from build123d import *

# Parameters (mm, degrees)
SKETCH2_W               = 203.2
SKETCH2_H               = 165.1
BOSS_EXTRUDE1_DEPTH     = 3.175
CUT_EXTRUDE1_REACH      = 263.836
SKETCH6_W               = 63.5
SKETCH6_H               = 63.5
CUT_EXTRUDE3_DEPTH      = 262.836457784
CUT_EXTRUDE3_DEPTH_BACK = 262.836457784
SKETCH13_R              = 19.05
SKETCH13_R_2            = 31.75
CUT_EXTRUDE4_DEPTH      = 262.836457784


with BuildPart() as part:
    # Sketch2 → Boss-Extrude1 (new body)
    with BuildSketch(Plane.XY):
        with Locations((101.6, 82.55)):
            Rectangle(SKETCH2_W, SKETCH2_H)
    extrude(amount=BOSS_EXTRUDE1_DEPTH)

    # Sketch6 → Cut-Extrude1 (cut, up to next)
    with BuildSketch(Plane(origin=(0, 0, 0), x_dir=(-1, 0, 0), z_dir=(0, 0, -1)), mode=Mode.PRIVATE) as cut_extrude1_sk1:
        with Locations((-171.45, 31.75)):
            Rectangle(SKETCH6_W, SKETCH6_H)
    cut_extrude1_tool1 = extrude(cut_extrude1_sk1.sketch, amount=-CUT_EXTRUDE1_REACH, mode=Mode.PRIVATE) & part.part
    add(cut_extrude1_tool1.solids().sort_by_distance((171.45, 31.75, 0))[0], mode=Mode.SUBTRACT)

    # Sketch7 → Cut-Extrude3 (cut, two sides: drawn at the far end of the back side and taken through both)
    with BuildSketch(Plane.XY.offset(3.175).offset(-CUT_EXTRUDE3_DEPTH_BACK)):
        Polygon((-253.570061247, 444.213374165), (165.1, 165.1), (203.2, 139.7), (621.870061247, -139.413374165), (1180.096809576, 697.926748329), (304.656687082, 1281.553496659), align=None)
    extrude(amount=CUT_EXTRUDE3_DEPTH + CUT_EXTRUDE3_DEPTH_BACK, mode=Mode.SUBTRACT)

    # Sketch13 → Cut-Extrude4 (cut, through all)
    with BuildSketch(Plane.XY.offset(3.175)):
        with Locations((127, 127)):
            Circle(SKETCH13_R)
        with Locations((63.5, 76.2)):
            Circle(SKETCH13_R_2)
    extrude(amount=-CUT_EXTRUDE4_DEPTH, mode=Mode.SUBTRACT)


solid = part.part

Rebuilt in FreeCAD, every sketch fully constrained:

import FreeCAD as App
import Part
import Sketcher

V = App.Vector
Q = App.Units.Quantity


def add_polygon(sketch, points):
    """Adds a closed chain of lines whose ends are joined by coincident constraints."""
    first, n = sketch.GeometryCount, len(points)
    for a, b in zip(points, points[1:] + points[:1]):
        sketch.addGeometry(Part.LineSegment(App.Vector(*a, 0), App.Vector(*b, 0)), False)
    for i in range(n):
        sketch.addConstraint(Sketcher.Constraint("Coincident", first + i, 2, first + (i + 1) % n, 1))

doc = App.newDocument("Part")
body = doc.addObject("PartDesign::Body", "Body")

# Sketch on XY plane
sketch1 = body.newObject("Sketcher::SketchObject", "Sketch")
sketch1.AttachmentSupport = (doc.getObject("XY_Plane"), [""])
sketch1.MapMode = "FlatFace"
add_polygon(sketch1, [(0, 165), (0, 0), (203, 0), (203, 165)])  # lines 0-3
sketch1.addConstraint(Sketcher.Constraint("Vertical", 0))
sketch1.addConstraint(Sketcher.Constraint("Horizontal", 1))
sketch1.addConstraint(Sketcher.Constraint("Vertical", 2))
sketch1.addConstraint(Sketcher.Constraint("Horizontal", 3))
sketch1.addConstraint(Sketcher.Constraint("Coincident", 0, 2, -1, 1))
sketch1.addConstraint(Sketcher.Constraint("DistanceX", 1, 1, 1, 2, Q("8 in")))
sketch1.addConstraint(Sketcher.Constraint("DistanceY", 0, 2, 0, 1, Q("6.5 in")))
pad1 = body.newObject("PartDesign::Pad", "Pad")
pad1.Profile = sketch1
pad1.Length = Q("0.125 in")

# Sketch on XY plane
sketch2 = body.newObject("Sketcher::SketchObject", "Sketch001")
sketch2.AttachmentSupport = (doc.getObject("XY_Plane"), [""])
sketch2.MapMode = "FlatFace"
add_polygon(sketch2, [(203, 64), (203, 0), (140, 0), (140, 64)])  # lines 0-3
sketch2.addConstraint(Sketcher.Constraint("Vertical", 0))
sketch2.addConstraint(Sketcher.Constraint("Horizontal", 1))
sketch2.addConstraint(Sketcher.Constraint("Vertical", 2))
sketch2.addConstraint(Sketcher.Constraint("Horizontal", 3))
sketch2.addConstraint(Sketcher.Constraint("PointOnObject", 0, 2, -1))
sketch2.addConstraint(Sketcher.Constraint("Equal", 3, 0))
sketch2.addConstraint(Sketcher.Constraint("DistanceX", 1, 2, 1, 1, Q("2.5 in")))
sketch2.addConstraint(Sketcher.Constraint("DistanceX", -1, 1, 0, 2, Q("8 in")))
pocket1 = body.newObject("PartDesign::Pocket", "Pocket")
pocket1.Profile = sketch2
pocket1.Type = "UpToFirst"
pocket1.Reversed = True

# Sketch on XY plane
sketch3 = body.newObject("Sketcher::SketchObject", "Sketch002")
sketch3.AttachmentSupport = (doc.getObject("XY_Plane"), [""])
sketch3.MapMode = "FlatFace"
sketch3.AttachmentOffset = App.Placement(V(0, 0, 0.125 * 25.4), App.Rotation())
add_polygon(sketch3, [(-254, 444), (622, -139), (1180, 698), (305, 1282)])  # lines 0-3
sketch3.addConstraint(Sketcher.Constraint("Perpendicular", 0, 1))
sketch3.addConstraint(Sketcher.Constraint("Perpendicular", 1, 2))
sketch3.addConstraint(Sketcher.Constraint("Perpendicular", 2, 3))
sketch3.addConstraint(Sketcher.Constraint("DistanceX", -1, 1, 0, 2, 621.870061))
sketch3.addConstraint(Sketcher.Constraint("DistanceX", -1, 1, 1, 2, 1180.09681))
sketch3.addConstraint(Sketcher.Constraint("DistanceY", -1, 1, 1, 2, 697.926748))
sketch3.addConstraint(Sketcher.Constraint("DistanceX", 3, 2, -1, 1, 253.570061))
sketch3.addConstraint(Sketcher.Constraint("DistanceY", 1, 2, 2, 2, 583.626748))
pocket2 = body.newObject("PartDesign::Pocket", "Pocket001")
pocket2.Profile = sketch3
pocket2.Type = "ThroughAll"
pocket2.Midplane = True

# Sketch on XY plane
sketch4 = body.newObject("Sketcher::SketchObject", "Sketch003")
sketch4.AttachmentSupport = (doc.getObject("XY_Plane"), [""])
sketch4.MapMode = "FlatFace"
sketch4.AttachmentOffset = App.Placement(V(0, 0, 0.125 * 25.4), App.Rotation())
sketch4.addGeometry(Part.Circle(V(127, 127, 0), V(0, 0, 1), 19), False)
sketch4.addGeometry(Part.Circle(V(64, 76, 0), V(0, 0, 1), 32), False)
sketch4.addConstraint(Sketcher.Constraint("Diameter", 0, Q("1.5 in")))
sketch4.addConstraint(Sketcher.Constraint("Diameter", 1, Q("2.5 in")))
sketch4.addConstraint(Sketcher.Constraint("DistanceX", -1, 1, 0, 3, Q("5 in")))
sketch4.addConstraint(Sketcher.Constraint("DistanceY", -1, 1, 0, 3, Q("5 in")))
sketch4.addConstraint(Sketcher.Constraint("DistanceY", -1, 1, 1, 3, Q("3 in")))
sketch4.addConstraint(Sketcher.Constraint("DistanceX", -1, 1, 1, 3, Q("2.5 in")))
pocket3 = body.newObject("PartDesign::Pocket", "Pocket002")
pocket3.Profile = sketch4
pocket3.Type = "ThroughAll"

doc.recompute()
